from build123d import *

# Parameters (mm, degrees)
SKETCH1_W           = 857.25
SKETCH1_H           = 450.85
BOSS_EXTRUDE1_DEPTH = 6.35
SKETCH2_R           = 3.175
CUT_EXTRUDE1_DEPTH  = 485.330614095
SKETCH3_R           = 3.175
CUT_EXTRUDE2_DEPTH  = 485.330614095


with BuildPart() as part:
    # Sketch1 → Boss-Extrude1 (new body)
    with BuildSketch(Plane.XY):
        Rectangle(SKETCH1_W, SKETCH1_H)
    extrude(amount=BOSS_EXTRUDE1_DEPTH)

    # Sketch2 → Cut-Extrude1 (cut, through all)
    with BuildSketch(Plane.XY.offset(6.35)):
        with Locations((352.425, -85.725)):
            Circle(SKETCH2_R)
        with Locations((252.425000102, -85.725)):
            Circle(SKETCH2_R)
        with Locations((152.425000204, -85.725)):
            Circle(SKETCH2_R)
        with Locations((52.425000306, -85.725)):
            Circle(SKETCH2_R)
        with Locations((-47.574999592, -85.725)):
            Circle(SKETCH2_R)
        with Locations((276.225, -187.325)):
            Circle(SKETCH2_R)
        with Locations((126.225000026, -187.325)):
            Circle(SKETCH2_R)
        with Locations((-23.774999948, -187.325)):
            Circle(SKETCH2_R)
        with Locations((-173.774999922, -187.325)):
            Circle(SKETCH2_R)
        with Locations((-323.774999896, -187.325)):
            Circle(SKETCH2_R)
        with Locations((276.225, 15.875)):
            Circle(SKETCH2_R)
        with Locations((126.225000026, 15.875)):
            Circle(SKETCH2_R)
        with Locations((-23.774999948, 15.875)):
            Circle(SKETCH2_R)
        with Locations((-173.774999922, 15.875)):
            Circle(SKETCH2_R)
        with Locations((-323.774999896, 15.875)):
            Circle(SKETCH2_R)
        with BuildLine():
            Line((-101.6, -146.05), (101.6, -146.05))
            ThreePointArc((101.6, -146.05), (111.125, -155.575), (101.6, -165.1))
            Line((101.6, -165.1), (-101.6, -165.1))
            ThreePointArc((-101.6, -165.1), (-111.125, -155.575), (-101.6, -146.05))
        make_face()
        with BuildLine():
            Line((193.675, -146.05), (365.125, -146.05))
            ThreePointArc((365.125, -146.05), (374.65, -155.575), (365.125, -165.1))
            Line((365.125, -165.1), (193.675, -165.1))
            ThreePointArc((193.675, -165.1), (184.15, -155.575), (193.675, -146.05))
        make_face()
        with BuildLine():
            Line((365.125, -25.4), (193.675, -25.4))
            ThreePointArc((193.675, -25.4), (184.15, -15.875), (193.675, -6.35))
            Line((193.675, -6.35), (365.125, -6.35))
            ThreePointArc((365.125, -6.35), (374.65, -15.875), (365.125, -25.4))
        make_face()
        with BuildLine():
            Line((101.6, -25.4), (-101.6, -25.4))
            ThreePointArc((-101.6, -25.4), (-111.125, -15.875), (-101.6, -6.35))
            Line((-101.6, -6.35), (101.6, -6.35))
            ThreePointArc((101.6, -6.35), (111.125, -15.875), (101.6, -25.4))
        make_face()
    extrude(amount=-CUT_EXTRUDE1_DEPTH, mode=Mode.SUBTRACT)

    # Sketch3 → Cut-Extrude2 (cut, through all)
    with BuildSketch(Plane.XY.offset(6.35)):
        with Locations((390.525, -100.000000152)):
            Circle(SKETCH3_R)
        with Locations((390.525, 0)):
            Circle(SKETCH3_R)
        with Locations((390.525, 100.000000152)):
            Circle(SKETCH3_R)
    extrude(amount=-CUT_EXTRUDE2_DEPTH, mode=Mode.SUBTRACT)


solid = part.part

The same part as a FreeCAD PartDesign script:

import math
import FreeCAD as App
import Part
import Sketcher

V = App.Vector
Q = App.Units.Quantity

doc = App.newDocument("Part")
params = doc.addObject("Spreadsheet::Sheet", "Params")
for row, (alias, value) in enumerate([
    ("sketch1_width", "33.75 in"),
    ("sketch1_height", "17.75 in"),
    ("pad1_length", "0.25 in"),
    ("sketch2_diameter", "0.25 in"),
    ("sketch2_width", "8 in"),
    ("sketch2_radius", "0.375 in"),
    ("sketch2_width2", "6.75 in"),
    ("sketch3_diameter", "0.25 in"),
], start=1):
    params.set(f"A{row}", alias)
    params.set(f"B{row}", "=" + value)
    params.setAlias(f"B{row}", alias)

body = doc.addObject("PartDesign::Body", "Body")

# Sketch on XY plane
sketch1 = doc.addObject("Sketcher::SketchObject", "Sketch")
body.addObject(sketch1)
sketch1.AttachmentSupport = (doc.XY_Plane, [""])
sketch1.MapMode = "FlatFace"
sketch1.addGeometry([
    Part.LineSegment(V(-428.625, 225.425, 0), V(-428.625, -225.425, 0)),
    Part.LineSegment(V(-428.625, -225.425, 0), V(428.625, -225.425, 0)),
    Part.LineSegment(V(428.625, -225.425, 0), V(428.625, 225.425, 0)),
    Part.LineSegment(V(428.625, 225.425, 0), V(-428.625, 225.425, 0)),
], False)
sketch1.addConstraint([
    Sketcher.Constraint("Coincident", 0, 2, 1, 1),
    Sketcher.Constraint("Coincident", 1, 2, 2, 1),
    Sketcher.Constraint("Coincident", 2, 2, 3, 1),
    Sketcher.Constraint("Coincident", 3, 2, 0, 1),
    Sketcher.Constraint("Vertical", 0),
    Sketcher.Constraint("Horizontal", 1),
    Sketcher.Constraint("Vertical", 2),
    Sketcher.Constraint("Horizontal", 3),
    Sketcher.Constraint("Symmetric", 0, 2, 2, 2, -1, 1),
    Sketcher.Constraint("DistanceX", 1, 1, 1, 2, Q("33.75 in")),
    Sketcher.Constraint("DistanceY", 0, 2, 0, 1, Q("17.75 in")),
])
sketch1.setExpression("Constraints[9]", "Params.sketch1_width")
sketch1.setExpression("Constraints[10]", "Params.sketch1_height")
pad1 = doc.addObject("PartDesign::Pad", "Pad")
body.addObject(pad1)
pad1.Profile = sketch1
pad1.setExpression("Length", "Params.pad1_length")

# Sketch on XY plane
sketch2 = doc.addObject("Sketcher::SketchObject", "Sketch001")
body.addObject(sketch2)
sketch2.AttachmentSupport = (doc.XY_Plane, [""])
sketch2.MapMode = "FlatFace"
sketch2.AttachmentOffset = App.Placement(V(0, 0, 0.25 * 25.4), App.Rotation())
sketch2.addGeometry([
    Part.Circle(V(352.425, -85.725, 0), V(0, 0, 1), 3.175),  # 0
    Part.Circle(V(252.425, -85.725, 0), V(0, 0, 1), 3.175),  # 1
    Part.Circle(V(152.425, -85.725, 0), V(0, 0, 1), 3.175),  # 2
    Part.Circle(V(52.425, -85.725, 0), V(0, 0, 1), 3.175),  # 3
    Part.Circle(V(-47.575, -85.725, 0), V(0, 0, 1), 3.175),  # 4
    Part.Circle(V(276.225, -187.325, 0), V(0, 0, 1), 3.175),  # 5
    Part.Circle(V(126.225, -187.325, 0), V(0, 0, 1), 3.175),  # 6
    Part.Circle(V(-23.775, -187.325, 0), V(0, 0, 1), 3.175),  # 7
    Part.Circle(V(-173.775, -187.325, 0), V(0, 0, 1), 3.175),  # 8
    Part.Circle(V(-323.775, -187.325, 0), V(0, 0, 1), 3.175),  # 9
    Part.Circle(V(276.225, 15.875, 0), V(0, 0, 1), 3.175),  # 10
    Part.Circle(V(126.225, 15.875, 0), V(0, 0, 1), 3.175),  # 11
    Part.Circle(V(-23.775, 15.875, 0), V(0, 0, 1), 3.175),  # 12
    Part.Circle(V(-173.775, 15.875, 0), V(0, 0, 1), 3.175),  # 13
    Part.Circle(V(-323.775, 15.875, 0), V(0, 0, 1), 3.175),  # 14
    Part.LineSegment(V(101.6, -146.05, 0), V(-101.6, -146.05, 0)),  # 15
    Part.ArcOfCircle(Part.Circle(V(-101.6, -155.575, 0), V(0, 0, 1), 9.525), math.radians(90), math.radians(270)),  # 16
    Part.LineSegment(V(-101.6, -165.1, 0), V(101.6, -165.1, 0)),  # 17
    Part.ArcOfCircle(Part.Circle(V(101.6, -155.575, 0), V(0, 0, 1), 9.525), math.radians(-90), math.radians(90)),  # 18
    Part.LineSegment(V(365.125, -146.05, 0), V(193.675, -146.05, 0)),  # 19
    Part.ArcOfCircle(Part.Circle(V(193.675, -155.575, 0), V(0, 0, 1), 9.525), math.radians(90), math.radians(270)),  # 20
    Part.LineSegment(V(193.675, -165.1, 0), V(365.125, -165.1, 0)),  # 21
    Part.ArcOfCircle(Part.Circle(V(365.125, -155.575, 0), V(0, 0, 1), 9.525), math.radians(-90), math.radians(90)),  # 22
    Part.LineSegment(V(193.675, -25.4, 0), V(365.125, -25.4, 0)),  # 23
    Part.ArcOfCircle(Part.Circle(V(365.125, -15.875, 0), V(0, 0, 1), 9.525), math.radians(-90), math.radians(90)),  # 24
    Part.LineSegment(V(365.125, -6.35, 0), V(193.675, -6.35, 0)),  # 25
    Part.ArcOfCircle(Part.Circle(V(193.675, -15.875, 0), V(0, 0, 1), 9.525), math.radians(90), math.radians(270)),  # 26
    Part.LineSegment(V(-101.6, -25.4, 0), V(101.6, -25.4, 0)),  # 27
    Part.ArcOfCircle(Part.Circle(V(101.6, -15.875, 0), V(0, 0, 1), 9.525), math.radians(-90), math.radians(90)),  # 28
    Part.LineSegment(V(101.6, -6.35, 0), V(-101.6, -6.35, 0)),  # 29
    Part.ArcOfCircle(Part.Circle(V(-101.6, -15.875, 0), V(0, 0, 1), 9.525), math.radians(90), math.radians(270)),  # 30
], False)
sketch2.addConstraint([
    Sketcher.Constraint("Tangent", 15, 2, 16, 1),
    Sketcher.Constraint("Tangent", 16, 2, 17, 1),
    Sketcher.Constraint("Tangent", 17, 2, 18, 1),
    Sketcher.Constraint("Tangent", 18, 2, 15, 1),
    Sketcher.Constraint("Tangent", 19, 2, 20, 1),
    Sketcher.Constraint("Tangent", 20, 2, 21, 1),
    Sketcher.Constraint("Tangent", 21, 2, 22, 1),
    Sketcher.Constraint("Tangent", 22, 2, 19, 1),
    Sketcher.Constraint("Tangent", 23, 2, 24, 1),
    Sketcher.Constraint("Tangent", 24, 2, 25, 1),
    Sketcher.Constraint("Tangent", 25, 2, 26, 1),
    Sketcher.Constraint("Tangent", 26, 2, 23, 1),
    Sketcher.Constraint("Tangent", 27, 2, 28, 1),
    Sketcher.Constraint("Tangent", 28, 2, 29, 1),
    Sketcher.Constraint("Tangent", 29, 2, 30, 1),
    Sketcher.Constraint("Tangent", 30, 2, 27, 1),
    Sketcher.Constraint("Horizontal", 15),
    Sketcher.Constraint("Horizontal", 17),
    Sketcher.Constraint("Horizontal", 19),
    Sketcher.Constraint("Horizontal", 21),
    Sketcher.Constraint("Horizontal", 23),
    Sketcher.Constraint("Horizontal", 25),
    Sketcher.Constraint("Horizontal", 27),
    Sketcher.Constraint("Horizontal", 29),
    Sketcher.Constraint("Equal", 0, 1),
    Sketcher.Constraint("Equal", 1, 2),
    Sketcher.Constraint("Equal", 2, 3),
    Sketcher.Constraint("Equal", 3, 4),
    Sketcher.Constraint("Equal", 4, 5),
    Sketcher.Constraint("Equal", 5, 6),
    Sketcher.Constraint("Equal", 6, 7),
    Sketcher.Constraint("Equal", 7, 8),
    Sketcher.Constraint("Equal", 8, 9),
    Sketcher.Constraint("Equal", 9, 10),
    Sketcher.Constraint("Equal", 10, 11),
    Sketcher.Constraint("Equal", 11, 12),
    Sketcher.Constraint("Equal", 12, 13),
    Sketcher.Constraint("Equal", 13, 14),
    Sketcher.Constraint("Equal", 18, 20),
    Sketcher.Constraint("Equal", 22, 24),
    Sketcher.Constraint("Equal", 26, 28),
    Sketcher.Constraint("Horizontal", 0, 3, 1, 3),
    Sketcher.Constraint("Horizontal", 1, 3, 2, 3),
    Sketcher.Constraint("Horizontal", 2, 3, 3, 3),
    Sketcher.Constraint("Horizontal", 3, 3, 4, 3),
    Sketcher.Constraint("Horizontal", 5, 3, 6, 3),
    Sketcher.Constraint("Horizontal", 6, 3, 7, 3),
    Sketcher.Constraint("Horizontal", 7, 3, 8, 3),
    Sketcher.Constraint("Horizontal", 8, 3, 9, 3),
    Sketcher.Constraint("Horizontal", 10, 3, 11, 3),
    Sketcher.Constraint("Horizontal", 11, 3, 12, 3),
    Sketcher.Constraint("Horizontal", 12, 3, 13, 3),
    Sketcher.Constraint("Horizontal", 13, 3, 14, 3),
    Sketcher.Constraint("Horizontal", 18, 3, 20, 3),
    Sketcher.Constraint("Horizontal", 26, 3, 28, 3),
    Sketcher.Constraint("Vertical", 5, 3, 10, 3),
    Sketcher.Constraint("Vertical", 6, 3, 11, 3),
    Sketcher.Constraint("Vertical", 7, 3, 12, 3),
    Sketcher.Constraint("Vertical", 8, 3, 13, 3),
    Sketcher.Constraint("Vertical", 9, 3, 14, 3),
    Sketcher.Constraint("Vertical", 22, 3, 24, 3),
    Sketcher.Constraint("Vertical", 20, 3, 26, 3),
    Sketcher.Constraint("Vertical", 18, 3, 28, 3),
    Sketcher.Constraint("Vertical", 16, 3, 30, 3),
    Sketcher.Constraint("Diameter", 0, Q("0.25 in")),
    Sketcher.Constraint("DistanceX", 15, 2, 15, 1, Q("8 in")),
    Sketcher.Constraint("DistanceX", 16, 3, -1, 1, Q("4 in")),
    Sketcher.Constraint("DistanceY", 23, 2, -1, 1, Q("1 in")),
    Sketcher.Constraint("Radius", 16, Q("0.375 in")),
    Sketcher.Constraint("DistanceY", 5, 3, 1, 3, Q("4 in")),
    Sketcher.Constraint("DistanceX", 5, 3, 0, 3, Q("3 in")),
    Sketcher.Constraint("DistanceX", 7, 3, 3, 3, Q("3 in")),
    Sketcher.Constraint("DistanceY", 1, 3, 10, 3, Q("4 in")),
    Sketcher.Constraint("DistanceX", 19, 2, 19, 1, Q("6.75 in")),
    Sketcher.Constraint("DistanceY", 16, 2, -1, 1, Q("6.5 in")),
    Sketcher.Constraint("DistanceX", 0, 3, 22, 3, Q("0.5 in")),
    Sketcher.Constraint("DistanceY", 8, 3, 16, 3, Q("1.25 in")),
    Sketcher.Constraint("DistanceX", -1, 1, 0, 3, Q("13.875 in")),
    Sketcher.Constraint("DistanceX", -1, 1, 1, 3, 252.425),
    Sketcher.Constraint("DistanceX", -1, 1, 2, 3, 152.425),
    Sketcher.Constraint("DistanceX", -1, 1, 3, 3, 52.425),
    Sketcher.Constraint("DistanceX", 4, 3, -1, 1, 47.575),
    Sketcher.Constraint("DistanceX", -1, 1, 6, 3, 126.225),
    Sketcher.Constraint("DistanceX", 8, 3, -1, 1, 173.775),
    Sketcher.Constraint("DistanceX", 9, 3, -1, 1, 323.775),
])
sketch2.setExpression("Constraints[64]", "Params.sketch2_diameter")
sketch2.setExpression("Constraints[65]", "Params.sketch2_width")
sketch2.setExpression("Constraints[68]", "Params.sketch2_radius")
sketch2.setExpression("Constraints[73]", "Params.sketch2_width2")
pocket1 = doc.addObject("PartDesign::Pocket", "Pocket")
body.addObject(pocket1)
pocket1.Profile = sketch2
pocket1.Type = "ThroughAll"

# Sketch on XY plane
sketch3 = doc.addObject("Sketcher::SketchObject", "Sketch002")
body.addObject(sketch3)
sketch3.AttachmentSupport = (doc.XY_Plane, [""])
sketch3.MapMode = "FlatFace"
sketch3.AttachmentOffset = App.Placement(V(0, 0, 0.25 * 25.4), App.Rotation())
sketch3.addGeometry([
    Part.Circle(V(390.525, -100, 0), V(0, 0, 1), 3.175),
    Part.Circle(V(390.525, 0, 0), V(0, 0, 1), 3.175),
    Part.Circle(V(390.525, 100, 0), V(0, 0, 1), 3.175),
], False)
sketch3.addConstraint([
    Sketcher.Constraint("Equal", 0, 1),
    Sketcher.Constraint("Equal", 1, 2),
    Sketcher.Constraint("Symmetric", 0, 3, 2, 3, -1),
    Sketcher.Constraint("PointOnObject", 1, 3, -1),
    Sketcher.Constraint("Vertical", 0, 3, 1, 3),
    Sketcher.Constraint("Diameter", 0, Q("0.25 in")),
    Sketcher.Constraint("DistanceX", -1, 1, 0, 3, Q("15.375 in")),
    Sketcher.Constraint("DistanceY", 0, 3, -1, 1, 100.0),
])
sketch3.setExpression("Constraints[5]", "Params.sketch3_diameter")
pocket2 = doc.addObject("PartDesign::Pocket", "Pocket001")
body.addObject(pocket2)
pocket2.Profile = sketch3
pocket2.Type = "ThroughAll"

doc.recompute()
